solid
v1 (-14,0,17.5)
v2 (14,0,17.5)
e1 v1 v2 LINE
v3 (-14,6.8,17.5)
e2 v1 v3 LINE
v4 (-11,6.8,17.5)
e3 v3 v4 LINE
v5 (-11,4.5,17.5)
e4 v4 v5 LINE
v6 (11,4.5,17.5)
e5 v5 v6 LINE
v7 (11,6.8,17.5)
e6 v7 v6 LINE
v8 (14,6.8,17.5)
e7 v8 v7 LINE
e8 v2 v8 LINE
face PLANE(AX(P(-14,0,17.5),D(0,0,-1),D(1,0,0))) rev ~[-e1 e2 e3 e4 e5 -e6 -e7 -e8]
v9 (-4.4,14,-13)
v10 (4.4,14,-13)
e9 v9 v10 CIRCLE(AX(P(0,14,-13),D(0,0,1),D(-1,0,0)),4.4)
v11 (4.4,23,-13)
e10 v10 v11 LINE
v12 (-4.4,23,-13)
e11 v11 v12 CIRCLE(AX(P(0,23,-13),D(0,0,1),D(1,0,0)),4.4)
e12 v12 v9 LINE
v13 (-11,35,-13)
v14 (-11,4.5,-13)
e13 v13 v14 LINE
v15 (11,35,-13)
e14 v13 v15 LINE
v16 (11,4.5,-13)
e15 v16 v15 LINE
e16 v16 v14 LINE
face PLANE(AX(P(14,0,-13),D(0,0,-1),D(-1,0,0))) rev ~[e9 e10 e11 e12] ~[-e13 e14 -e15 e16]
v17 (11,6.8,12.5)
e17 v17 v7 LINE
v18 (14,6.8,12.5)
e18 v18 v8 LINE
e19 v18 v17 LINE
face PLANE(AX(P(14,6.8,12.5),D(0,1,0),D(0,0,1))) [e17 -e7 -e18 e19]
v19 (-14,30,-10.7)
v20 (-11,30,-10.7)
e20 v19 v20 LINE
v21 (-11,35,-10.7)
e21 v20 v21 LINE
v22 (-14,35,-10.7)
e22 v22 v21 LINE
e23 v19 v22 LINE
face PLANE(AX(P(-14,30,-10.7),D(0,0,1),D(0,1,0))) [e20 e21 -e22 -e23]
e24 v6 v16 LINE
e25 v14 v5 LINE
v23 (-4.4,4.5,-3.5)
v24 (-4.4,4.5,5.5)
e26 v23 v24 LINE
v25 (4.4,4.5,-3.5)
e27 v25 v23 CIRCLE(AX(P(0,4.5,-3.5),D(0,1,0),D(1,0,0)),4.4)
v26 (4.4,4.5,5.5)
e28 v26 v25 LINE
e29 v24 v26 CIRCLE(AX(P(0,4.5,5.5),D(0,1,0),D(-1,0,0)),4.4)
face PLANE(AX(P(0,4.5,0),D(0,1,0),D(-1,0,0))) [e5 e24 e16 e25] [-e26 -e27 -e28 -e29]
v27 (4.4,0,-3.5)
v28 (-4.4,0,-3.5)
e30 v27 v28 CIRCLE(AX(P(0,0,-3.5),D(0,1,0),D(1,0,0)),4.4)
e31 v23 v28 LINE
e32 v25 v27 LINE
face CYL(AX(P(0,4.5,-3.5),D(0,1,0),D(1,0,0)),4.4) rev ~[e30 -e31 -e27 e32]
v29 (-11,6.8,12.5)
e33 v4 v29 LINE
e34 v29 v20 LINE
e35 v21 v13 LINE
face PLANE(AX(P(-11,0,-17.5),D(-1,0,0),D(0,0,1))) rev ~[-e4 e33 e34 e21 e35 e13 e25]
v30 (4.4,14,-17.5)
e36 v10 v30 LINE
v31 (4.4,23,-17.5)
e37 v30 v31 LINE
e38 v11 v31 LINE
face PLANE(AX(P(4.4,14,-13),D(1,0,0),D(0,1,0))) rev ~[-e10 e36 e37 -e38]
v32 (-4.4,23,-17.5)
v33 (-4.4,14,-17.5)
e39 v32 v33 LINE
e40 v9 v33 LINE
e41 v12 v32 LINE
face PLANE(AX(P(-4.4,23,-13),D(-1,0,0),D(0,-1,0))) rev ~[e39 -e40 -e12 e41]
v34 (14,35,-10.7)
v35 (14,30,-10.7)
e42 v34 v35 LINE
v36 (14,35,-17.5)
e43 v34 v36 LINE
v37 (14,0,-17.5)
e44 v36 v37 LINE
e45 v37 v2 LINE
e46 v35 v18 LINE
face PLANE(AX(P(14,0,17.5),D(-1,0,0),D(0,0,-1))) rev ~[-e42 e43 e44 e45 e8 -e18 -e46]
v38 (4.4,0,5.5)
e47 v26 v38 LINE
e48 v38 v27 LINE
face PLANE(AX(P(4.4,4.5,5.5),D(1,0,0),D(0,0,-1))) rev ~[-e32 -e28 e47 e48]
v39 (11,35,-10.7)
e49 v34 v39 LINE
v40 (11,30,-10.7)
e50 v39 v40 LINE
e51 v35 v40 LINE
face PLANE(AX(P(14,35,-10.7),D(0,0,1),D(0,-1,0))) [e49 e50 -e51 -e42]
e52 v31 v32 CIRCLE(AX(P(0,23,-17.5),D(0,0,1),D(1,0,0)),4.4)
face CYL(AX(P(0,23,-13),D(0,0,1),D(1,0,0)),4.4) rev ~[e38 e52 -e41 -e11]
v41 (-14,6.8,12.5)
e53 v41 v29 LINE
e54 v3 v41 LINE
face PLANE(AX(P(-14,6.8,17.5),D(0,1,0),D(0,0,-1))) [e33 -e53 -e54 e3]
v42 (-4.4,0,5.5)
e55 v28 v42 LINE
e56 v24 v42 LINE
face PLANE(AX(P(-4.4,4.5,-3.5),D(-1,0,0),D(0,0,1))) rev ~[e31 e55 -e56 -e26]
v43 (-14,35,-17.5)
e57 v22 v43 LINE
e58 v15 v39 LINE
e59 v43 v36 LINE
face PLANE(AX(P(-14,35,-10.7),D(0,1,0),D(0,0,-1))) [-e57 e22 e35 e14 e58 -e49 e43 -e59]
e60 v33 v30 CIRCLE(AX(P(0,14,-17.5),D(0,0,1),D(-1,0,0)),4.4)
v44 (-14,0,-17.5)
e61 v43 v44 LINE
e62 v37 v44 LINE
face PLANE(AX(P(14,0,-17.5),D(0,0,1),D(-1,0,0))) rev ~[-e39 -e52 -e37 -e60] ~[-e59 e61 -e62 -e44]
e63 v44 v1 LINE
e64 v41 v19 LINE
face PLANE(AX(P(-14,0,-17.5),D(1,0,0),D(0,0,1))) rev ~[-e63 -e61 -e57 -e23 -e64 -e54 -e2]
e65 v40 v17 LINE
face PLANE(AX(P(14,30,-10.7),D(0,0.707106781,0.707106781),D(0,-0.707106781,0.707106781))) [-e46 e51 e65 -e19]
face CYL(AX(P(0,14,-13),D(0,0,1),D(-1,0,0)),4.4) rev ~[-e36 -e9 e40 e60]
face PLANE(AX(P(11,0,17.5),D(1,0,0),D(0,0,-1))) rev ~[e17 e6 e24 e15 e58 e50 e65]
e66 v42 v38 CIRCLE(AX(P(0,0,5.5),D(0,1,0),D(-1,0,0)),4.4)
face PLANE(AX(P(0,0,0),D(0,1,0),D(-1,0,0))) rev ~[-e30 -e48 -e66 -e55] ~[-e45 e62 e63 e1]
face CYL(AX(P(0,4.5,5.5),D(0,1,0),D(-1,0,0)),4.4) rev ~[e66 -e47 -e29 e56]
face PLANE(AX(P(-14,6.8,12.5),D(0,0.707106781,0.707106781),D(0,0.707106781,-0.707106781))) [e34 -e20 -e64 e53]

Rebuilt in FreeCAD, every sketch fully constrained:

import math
import FreeCAD as App
import Part
import Sketcher

V = App.Vector
Q = App.Units.Quantity


def add_polygon(sketch, points):
    """Adds a closed chain of lines whose ends are joined by coincident constraints."""
    first, n = sketch.GeometryCount, len(points)
    for a, b in zip(points, points[1:] + points[:1]):
        sketch.addGeometry(Part.LineSegment(App.Vector(*a, 0), App.Vector(*b, 0)), False)
    for i in range(n):
        sketch.addConstraint(Sketcher.Constraint("Coincident", first + i, 2, first + (i + 1) % n, 1))

doc = App.newDocument("Part")
body = doc.addObject("PartDesign::Body", "Body")

sketch1 = body.newObject("Sketcher::SketchObject", "Sketch")
sketch1.AttachmentSupport = (doc.getObject("XZ_Plane"), [""])
sketch1.MapMode = "FlatFace"
add_polygon(sketch1, [(-14, -18), (-14, 18), (14, 18), (14, -18)])
sketch1.addConstraint(Sketcher.Constraint("Vertical", 0))
sketch1.addConstraint(Sketcher.Constraint("Horizontal", 1))
sketch1.addConstraint(Sketcher.Constraint("Vertical", 2))
sketch1.addConstraint(Sketcher.Constraint("Horizontal", 3))
sketch1.addConstraint(Sketcher.Constraint("Symmetric", 0, 2, 2, 2, -1, 1))
sketch1.addConstraint(Sketcher.Constraint("DistanceX", 1, 1, 1, 2, Q("28 mm")))
sketch1.addConstraint(Sketcher.Constraint("DistanceY", 0, 1, 0, 2, Q("35 mm")))
pad1 = body.newObject("PartDesign::Pad", "Pad")
pad1.Profile = sketch1
pad1.Length = 4.5
pad1.Reversed = True

sketch2 = body.newObject("Sketcher::SketchObject", "Sketch001")
sketch2.AttachmentSupport = (doc.getObject("YZ_Plane"), [""])
sketch2.MapMode = "FlatFace"
sketch2.AttachmentOffset = App.Placement(V(0, 0, 14), App.Rotation())
add_polygon(sketch2, [(6.8, 17.5), (4.5, 17.5), (4.5, -17.5), (35, -17.5), (35, -10.7), (30, -10.7), (6.8, 12.5)])
sketch2.addConstraint(Sketcher.Constraint("Horizontal", 0))
sketch2.addConstraint(Sketcher.Constraint("Vertical", 1))
sketch2.addConstraint(Sketcher.Constraint("Horizontal", 2))
sketch2.addConstraint(Sketcher.Constraint("Vertical", 3))
sketch2.addConstraint(Sketcher.Constraint("Horizontal", 4))
sketch2.addConstraint(Sketcher.Constraint("Vertical", 6))
sketch2.addConstraint(Sketcher.Constraint("Equal", 4, 6))
sketch2.addConstraint(Sketcher.Constraint("DistanceX", 4, 2, 4, 1, Q("5 mm")))
sketch2.addConstraint(Sketcher.Constraint("DistanceY", 3, 1, 3, 2, Q("6.8 mm")))
sketch2.addConstraint(Sketcher.Constraint("DistanceX", -1, 1, 5, 2, Q("6.8 mm")))
sketch2.addConstraint(Sketcher.Constraint("DistanceY", 1, 2, 1, 1, Q("35 mm")))
sketch2.addConstraint(Sketcher.Constraint("Angle", 5, Q("135 deg")))
sketch2.addConstraint(Sketcher.Constraint("DistanceX", 0, 2, 0, 1, Q("2.3 mm")))
sketch2.addConstraint(Sketcher.Constraint("DistanceY", -1, 1, 0, 2, Q("17.5 mm")))
pad2 = body.newObject("PartDesign::Pad", "Pad001")
pad2.Profile = sketch2
pad2.Length = 3
pad2.Reversed = True

sketch3 = body.newObject("Sketcher::SketchObject", "Sketch002")
sketch3.AttachmentSupport = (doc.getObject("YZ_Plane"), [""])
sketch3.MapMode = "FlatFace"
sketch3.AttachmentOffset = App.Placement(V(0, 0, -14), App.Rotation())
add_polygon(sketch3, [(35, -18), (0, -18), (0, 18), (7, 18), (7, 12), (30, -11), (35, -11)])
sketch3.addConstraint(Sketcher.Constraint("Horizontal", 0))
sketch3.addConstraint(Sketcher.Constraint("Vertical", 1))
sketch3.addConstraint(Sketcher.Constraint("Horizontal", 2))
sketch3.addConstraint(Sketcher.Constraint("Vertical", 3))
sketch3.addConstraint(Sketcher.Constraint("Horizontal", 5))
sketch3.addConstraint(Sketcher.Constraint("Vertical", 6))
sketch3.addConstraint(Sketcher.Constraint("Symmetric", 0, 2, 1, 2, -1, 1))
sketch3.addConstraint(Sketcher.Constraint("Equal", 0, 1))
sketch3.addConstraint(Sketcher.Constraint("Equal", 5, 3))
sketch3.addConstraint(Sketcher.Constraint("Equal", 2, 6))
sketch3.addConstraint(Sketcher.Constraint("DistanceX", 0, 2, 0, 1, Q("35 mm")))
sketch3.addConstraint(Sketcher.Constraint("DistanceX", 5, 1, 5, 2, Q("5 mm")))
sketch3.addConstraint(Sketcher.Constraint("DistanceX", 2, 1, 2, 2, Q("6.8 mm")))
pad3 = body.newObject("PartDesign::Pad", "Pad002")
pad3.Profile = sketch3
pad3.Length = 3

sketch4 = body.newObject("Sketcher::SketchObject", "Sketch003")
sketch4.AttachmentSupport = (doc.getObject("XY_Plane"), [""])
sketch4.MapMode = "FlatFace"
sketch4.AttachmentOffset = App.Placement(V(0, 0, -17.5), App.Rotation())
add_polygon(sketch4, [(14, 35), (14, 0), (-14, 0), (-14, 35)])
sketch4.addConstraint(Sketcher.Constraint("Vertical", 0))
sketch4.addConstraint(Sketcher.Constraint("Horizontal", 1))
sketch4.addConstraint(Sketcher.Constraint("Vertical", 2))
sketch4.addConstraint(Sketcher.Constraint("Horizontal", 3))
sketch4.addConstraint(Sketcher.Constraint("Symmetric", 0, 2, 1, 2, -1, 1))
sketch4.addConstraint(Sketcher.Constraint("DistanceX", 1, 2, 1, 1, Q("28 mm")))
sketch4.addConstraint(Sketcher.Constraint("DistanceY", 0, 2, 0, 1, Q("35 mm")))
pad4 = body.newObject("PartDesign::Pad", "Pad003")
pad4.Profile = sketch4
pad4.Length = 4.5

sketch5 = body.newObject("Sketcher::SketchObject", "Sketch004")
sketch5.AttachmentSupport = (doc.getObject("XZ_Plane"), [""])
sketch5.MapMode = "FlatFace"
sketch5.AttachmentOffset = App.Placement(V(0, 0, -4.5), App.Rotation())
sketch5.addGeometry(Part.ArcOfCircle(Part.Circle(V(0, -3.5, 0), V(0, 0, 1), 4.4), math.radians(180), math.radians(360)), False)
sketch5.addGeometry(Part.LineSegment(V(-4.4, -3.5, 0), V(-4.4, 5.5, 0)), False)
sketch5.addGeometry(Part.ArcOfCircle(Part.Circle(V(0, 5.5, 0), V(0, 0, 1), 4.4), math.radians(0), math.radians(180)), False)
sketch5.addGeometry(Part.LineSegment(V(4.4, 5.5, 0), V(4.4, -3.5, 0)), False)
sketch5.addConstraint(Sketcher.Constraint("Tangent", 0, 1, 1, 1))
sketch5.addConstraint(Sketcher.Constraint("Tangent", 1, 2, 2, 2))
sketch5.addConstraint(Sketcher.Constraint("Tangent", 2, 1, 3, 1))
sketch5.addConstraint(Sketcher.Constraint("Tangent", 3, 2, 0, 2))
sketch5.addConstraint(Sketcher.Constraint("Vertical", 1))
sketch5.addConstraint(Sketcher.Constraint("Vertical", 3))
sketch5.addConstraint(Sketcher.Constraint("PointOnObject", 0, 3, -2))
sketch5.addConstraint(Sketcher.Constraint("Radius", 0, Q("4.4 mm")))
sketch5.addConstraint(Sketcher.Constraint("DistanceY", 1, 1, 1, 2, Q("9 mm")))
sketch5.addConstraint(Sketcher.Constraint("DistanceY", 0, 3, -1, 1, Q("3.5 mm")))
pocket1 = body.newObject("PartDesign::Pocket", "Pocket")
pocket1.Profile = sketch5
pocket1.Type = "ThroughAll"
pocket1.Reversed = True

sketch6 = body.newObject("Sketcher::SketchObject", "Sketch005")
sketch6.AttachmentSupport = (doc.getObject("XY_Plane"), [""])
sketch6.MapMode = "FlatFace"
sketch6.AttachmentOffset = App.Placement(V(0, 0, -13), App.Rotation())
sketch6.addGeometry(Part.ArcOfCircle(Part.Circle(V(0, 23, 0), V(0, 0, 1), 4.4), math.radians(0), math.radians(180)), False)
sketch6.addGeometry(Part.LineSegment(V(-4.4, 23, 0), V(-4.4, 14, 0)), False)
sketch6.addGeometry(Part.ArcOfCircle(Part.Circle(V(0, 14, 0), V(0, 0, 1), 4.4), math.radians(180), math.radians(360)), False)
sketch6.addGeometry(Part.LineSegment(V(4.4, 14, 0), V(4.4, 23, 0)), False)
sketch6.addConstraint(Sketcher.Constraint("Tangent", 0, 2, 1, 1))
sketch6.addConstraint(Sketcher.Constraint("Tangent", 1, 2, 2, 1))
sketch6.addConstraint(Sketcher.Constraint("Tangent", 2, 2, 3, 1))
sketch6.addConstraint(Sketcher.Constraint("Tangent", 3, 2, 0, 1))
sketch6.addConstraint(Sketcher.Constraint("Vertical", 1))
sketch6.addConstraint(Sketcher.Constraint("Vertical", 3))
sketch6.addConstraint(Sketcher.Constraint("PointOnObject", 0, 3, -2))
sketch6.addConstraint(Sketcher.Constraint("Radius", 0, Q("4.4 mm")))
sketch6.addConstraint(Sketcher.Constraint("DistanceY", 1, 2, 1, 1, Q("9 mm")))
sketch6.addConstraint(Sketcher.Constraint("DistanceY", -1, 1, 2, 3, Q("14 mm")))
pocket2 = body.newObject("PartDesign::Pocket", "Pocket001")
pocket2.Profile = sketch6
pocket2.Length = 10

doc.recompute()
